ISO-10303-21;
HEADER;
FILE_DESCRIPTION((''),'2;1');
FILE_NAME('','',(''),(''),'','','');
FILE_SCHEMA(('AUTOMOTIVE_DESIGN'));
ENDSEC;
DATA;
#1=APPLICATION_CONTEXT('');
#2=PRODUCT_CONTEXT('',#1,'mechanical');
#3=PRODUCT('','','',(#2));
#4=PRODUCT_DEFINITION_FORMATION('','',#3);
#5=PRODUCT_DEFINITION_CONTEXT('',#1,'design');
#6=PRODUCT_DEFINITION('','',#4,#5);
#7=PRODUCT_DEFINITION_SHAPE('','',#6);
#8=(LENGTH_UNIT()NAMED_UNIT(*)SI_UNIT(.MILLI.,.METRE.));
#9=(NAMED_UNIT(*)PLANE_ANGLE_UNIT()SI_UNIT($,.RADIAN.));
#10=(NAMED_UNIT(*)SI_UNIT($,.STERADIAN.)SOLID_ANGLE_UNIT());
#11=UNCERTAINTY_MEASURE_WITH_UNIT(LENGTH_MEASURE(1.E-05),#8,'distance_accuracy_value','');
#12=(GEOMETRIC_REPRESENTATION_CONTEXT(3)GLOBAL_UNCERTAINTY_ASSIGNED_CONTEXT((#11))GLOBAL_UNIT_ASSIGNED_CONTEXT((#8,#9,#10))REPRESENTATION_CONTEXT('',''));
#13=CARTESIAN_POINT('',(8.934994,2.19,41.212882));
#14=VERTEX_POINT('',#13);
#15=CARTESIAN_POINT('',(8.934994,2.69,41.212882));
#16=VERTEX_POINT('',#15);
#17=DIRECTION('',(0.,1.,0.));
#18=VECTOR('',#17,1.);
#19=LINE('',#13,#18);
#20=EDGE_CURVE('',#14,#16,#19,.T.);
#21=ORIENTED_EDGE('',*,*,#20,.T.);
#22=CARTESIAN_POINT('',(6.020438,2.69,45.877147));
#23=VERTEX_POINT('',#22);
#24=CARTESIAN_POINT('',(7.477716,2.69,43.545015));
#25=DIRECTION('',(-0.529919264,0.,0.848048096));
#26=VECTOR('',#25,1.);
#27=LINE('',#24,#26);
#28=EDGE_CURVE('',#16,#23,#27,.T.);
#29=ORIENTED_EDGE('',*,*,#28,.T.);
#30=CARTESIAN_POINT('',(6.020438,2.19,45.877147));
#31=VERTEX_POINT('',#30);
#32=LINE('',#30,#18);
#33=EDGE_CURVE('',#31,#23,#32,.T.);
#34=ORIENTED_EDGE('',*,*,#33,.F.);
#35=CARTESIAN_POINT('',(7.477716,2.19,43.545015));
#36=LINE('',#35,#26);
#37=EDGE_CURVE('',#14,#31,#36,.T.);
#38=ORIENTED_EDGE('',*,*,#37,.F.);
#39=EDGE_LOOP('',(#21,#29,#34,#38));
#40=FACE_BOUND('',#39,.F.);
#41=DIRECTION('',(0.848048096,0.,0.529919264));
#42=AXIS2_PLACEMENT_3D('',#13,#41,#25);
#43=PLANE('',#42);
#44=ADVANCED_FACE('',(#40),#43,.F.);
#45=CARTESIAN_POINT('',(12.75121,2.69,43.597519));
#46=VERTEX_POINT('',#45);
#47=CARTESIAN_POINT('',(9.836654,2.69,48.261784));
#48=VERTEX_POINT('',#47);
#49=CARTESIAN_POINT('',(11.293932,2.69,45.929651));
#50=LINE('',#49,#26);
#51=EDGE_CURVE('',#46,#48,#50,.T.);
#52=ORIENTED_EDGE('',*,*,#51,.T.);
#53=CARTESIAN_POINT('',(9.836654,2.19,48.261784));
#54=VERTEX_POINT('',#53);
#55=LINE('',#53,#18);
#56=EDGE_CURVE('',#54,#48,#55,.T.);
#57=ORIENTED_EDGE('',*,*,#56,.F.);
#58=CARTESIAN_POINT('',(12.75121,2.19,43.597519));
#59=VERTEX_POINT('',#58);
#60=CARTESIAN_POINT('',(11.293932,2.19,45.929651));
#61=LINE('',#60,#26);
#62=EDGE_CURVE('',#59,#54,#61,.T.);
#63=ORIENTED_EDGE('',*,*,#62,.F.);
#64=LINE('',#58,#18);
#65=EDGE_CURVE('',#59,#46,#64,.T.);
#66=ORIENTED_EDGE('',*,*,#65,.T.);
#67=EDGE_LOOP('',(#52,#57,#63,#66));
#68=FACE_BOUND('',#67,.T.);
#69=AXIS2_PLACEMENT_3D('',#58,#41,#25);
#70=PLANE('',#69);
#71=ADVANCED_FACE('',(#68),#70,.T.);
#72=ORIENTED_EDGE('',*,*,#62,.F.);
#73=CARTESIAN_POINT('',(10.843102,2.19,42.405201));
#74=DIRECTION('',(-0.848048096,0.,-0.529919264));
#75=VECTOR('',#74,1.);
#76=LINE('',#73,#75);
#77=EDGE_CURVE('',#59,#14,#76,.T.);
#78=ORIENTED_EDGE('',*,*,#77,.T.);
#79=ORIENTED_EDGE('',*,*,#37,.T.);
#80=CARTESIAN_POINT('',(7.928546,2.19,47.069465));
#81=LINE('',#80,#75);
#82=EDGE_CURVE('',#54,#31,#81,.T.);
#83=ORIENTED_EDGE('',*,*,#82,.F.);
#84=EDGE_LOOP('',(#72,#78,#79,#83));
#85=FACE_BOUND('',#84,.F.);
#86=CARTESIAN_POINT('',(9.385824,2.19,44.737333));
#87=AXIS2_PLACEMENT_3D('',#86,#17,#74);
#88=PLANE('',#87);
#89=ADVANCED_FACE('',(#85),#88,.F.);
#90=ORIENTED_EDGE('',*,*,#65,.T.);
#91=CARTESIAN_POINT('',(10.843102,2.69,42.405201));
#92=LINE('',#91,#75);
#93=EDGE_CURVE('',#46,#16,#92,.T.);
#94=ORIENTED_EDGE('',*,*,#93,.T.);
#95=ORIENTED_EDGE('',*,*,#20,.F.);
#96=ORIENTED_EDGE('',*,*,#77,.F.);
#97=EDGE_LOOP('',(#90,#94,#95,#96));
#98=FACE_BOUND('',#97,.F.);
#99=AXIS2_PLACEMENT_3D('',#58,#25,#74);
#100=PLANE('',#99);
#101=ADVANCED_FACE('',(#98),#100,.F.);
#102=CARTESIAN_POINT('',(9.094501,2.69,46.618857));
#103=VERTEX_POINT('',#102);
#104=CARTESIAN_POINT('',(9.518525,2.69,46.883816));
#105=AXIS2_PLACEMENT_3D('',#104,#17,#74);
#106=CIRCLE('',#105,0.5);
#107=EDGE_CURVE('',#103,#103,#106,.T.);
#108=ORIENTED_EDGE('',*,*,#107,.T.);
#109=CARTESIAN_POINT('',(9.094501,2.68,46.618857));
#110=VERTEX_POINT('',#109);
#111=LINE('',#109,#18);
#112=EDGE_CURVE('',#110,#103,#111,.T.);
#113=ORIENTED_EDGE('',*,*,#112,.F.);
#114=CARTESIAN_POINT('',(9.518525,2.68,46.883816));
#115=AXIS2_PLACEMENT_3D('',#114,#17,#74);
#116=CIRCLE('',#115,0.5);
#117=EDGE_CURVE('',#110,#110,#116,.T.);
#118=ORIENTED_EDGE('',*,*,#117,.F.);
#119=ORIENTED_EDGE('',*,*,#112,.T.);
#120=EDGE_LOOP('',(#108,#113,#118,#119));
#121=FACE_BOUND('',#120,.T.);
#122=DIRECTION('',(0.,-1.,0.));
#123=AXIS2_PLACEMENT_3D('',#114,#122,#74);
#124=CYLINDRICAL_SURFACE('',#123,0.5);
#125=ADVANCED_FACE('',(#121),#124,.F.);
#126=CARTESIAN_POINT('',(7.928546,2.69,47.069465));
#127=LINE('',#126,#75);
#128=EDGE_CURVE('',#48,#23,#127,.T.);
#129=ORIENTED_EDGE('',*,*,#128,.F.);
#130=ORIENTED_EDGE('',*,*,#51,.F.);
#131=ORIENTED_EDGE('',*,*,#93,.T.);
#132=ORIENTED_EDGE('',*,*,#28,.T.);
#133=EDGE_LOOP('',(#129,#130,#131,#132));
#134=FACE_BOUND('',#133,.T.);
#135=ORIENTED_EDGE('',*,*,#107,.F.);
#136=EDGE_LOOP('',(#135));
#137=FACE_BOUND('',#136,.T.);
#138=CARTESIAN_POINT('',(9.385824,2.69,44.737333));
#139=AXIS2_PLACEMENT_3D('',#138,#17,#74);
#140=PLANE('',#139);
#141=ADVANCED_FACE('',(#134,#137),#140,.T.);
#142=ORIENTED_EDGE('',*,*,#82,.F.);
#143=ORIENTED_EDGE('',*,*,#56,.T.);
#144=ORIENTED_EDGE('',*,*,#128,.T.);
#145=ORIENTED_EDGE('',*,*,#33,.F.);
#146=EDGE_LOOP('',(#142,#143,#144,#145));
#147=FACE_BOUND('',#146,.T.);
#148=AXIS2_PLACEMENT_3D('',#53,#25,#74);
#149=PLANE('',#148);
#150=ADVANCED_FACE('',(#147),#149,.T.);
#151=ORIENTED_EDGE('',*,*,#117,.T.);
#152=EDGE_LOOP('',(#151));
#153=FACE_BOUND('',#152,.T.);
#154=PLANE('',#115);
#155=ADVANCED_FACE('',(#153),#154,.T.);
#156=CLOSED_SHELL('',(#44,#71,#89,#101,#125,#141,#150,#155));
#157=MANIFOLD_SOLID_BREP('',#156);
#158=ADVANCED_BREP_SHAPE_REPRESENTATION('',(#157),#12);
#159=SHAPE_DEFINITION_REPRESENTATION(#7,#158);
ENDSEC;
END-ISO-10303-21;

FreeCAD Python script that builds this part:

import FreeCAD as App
import Part
import Sketcher
from FreeCAD import Vector
Q = App.Units.Quantity

doc = App.newDocument("Part")
params = doc.addObject("Spreadsheet::Sheet", "Params")
for row, (alias, value) in enumerate([
    ("sketch1_diameter", "1 mm"),
    ("pad1_length", "0.01 mm"),
    ("sketch2_width", "4.5 mm"),
    ("sketch2_height", "5.5 mm"),
    ("pad2_length", "0.5 mm"),
], start=1):
    params.set(f"A{row}", alias)
    params.set(f"B{row}", "=" + value)
    params.setAlias(f"B{row}", alias)

body = doc.addObject("PartDesign::Body", "Body")

sketch1 = body.newObject("Sketcher::SketchObject", "Sketch")
sketch1.AttachmentSupport = (doc.getObject("XY_Plane"), [""])
sketch1.MapMode = "FlatFace"
sketch1.AttachmentOffset = App.Placement(Vector(0, 0, 0.49), App.Rotation())
sketch1.addGeometry(Part.Circle(Vector(1, 4.5, 0), Vector(0, 0, 1), 0.5), False)
sketch1.addConstraint([
    Sketcher.Constraint("Diameter", 0, Q("1 mm")),
    Sketcher.Constraint("DistanceX", -1, 1, 0, 3, Q("1 mm")),
    Sketcher.Constraint("DistanceY", -1, 1, 0, 3, Q("4.5 mm")),
])
sketch1.setExpression("Constraints[0]", "Params.sketch1_diameter")
pad1 = body.newObject("PartDesign::Pad", "Pad")
pad1.Profile = sketch1
pad1.setExpression("Length", "Params.pad1_length")
body2 = doc.addObject("PartDesign::Body", "Body001")

sketch2 = body2.newObject("Sketcher::SketchObject", "Sketch001")
sketch2.AttachmentSupport = (doc.getObject("XY_Plane001"), [""])
sketch2.MapMode = "FlatFace"
sketch2.addGeometry([
    Part.LineSegment(Vector(0, 5.5, 0), Vector(0, 0, 0)),
    Part.LineSegment(Vector(0, 0, 0), Vector(4.5, 0, 0)),
    Part.LineSegment(Vector(4.5, 0, 0), Vector(4.5, 5.5, 0)),
    Part.LineSegment(Vector(4.5, 5.5, 0), Vector(0, 5.5, 0)),
], False)
sketch2.addConstraint([
    Sketcher.Constraint("Coincident", 0, 2, 1, 1),
    Sketcher.Constraint("Coincident", 1, 2, 2, 1),
    Sketcher.Constraint("Coincident", 2, 2, 3, 1),
    Sketcher.Constraint("Coincident", 3, 2, 0, 1),
    Sketcher.Constraint("Vertical", 0),
    Sketcher.Constraint("Horizontal", 1),
    Sketcher.Constraint("Vertical", 2),
    Sketcher.Constraint("Horizontal", 3),
    Sketcher.Constraint("Coincident", 0, 2, -1, 1),
    Sketcher.Constraint("DistanceX", 1, 1, 1, 2, Q("4.5 mm")),
    Sketcher.Constraint("DistanceY", 0, 2, 0, 1, Q("5.5 mm")),
])
sketch2.setExpression("Constraints[9]", "Params.sketch2_width")
sketch2.setExpression("Constraints[10]", "Params.sketch2_height")
pad2 = body2.newObject("PartDesign::Pad", "Pad001")
pad2.Profile = sketch2
pad2.setExpression("Length", "Params.pad2_length")
doc.recompute()

boolean = body2.newObject("PartDesign::Boolean", "Boolean")
boolean.Type = "Cut"
boolean.addObjects([body])
body3 = doc.addObject("PartDesign::Body", "Body002")
doc.recompute()

body2.Placement = App.Placement(Vector(0, 0, 0), App.Rotation(Vector(1, 0, 0), 90))
boolean2 = body3.newObject("PartDesign::Boolean", "Boolean001")
boolean2.Type = "Fuse"
boolean2.addObjects([body2])
body4 = doc.addObject("PartDesign::Body", "Body003")
doc.recompute()

body3.Placement = App.Placement(Vector(0, 0, 0), App.Rotation(Vector(0, 1, 0), 32))
boolean3 = body4.newObject("PartDesign::Boolean", "Boolean002")
boolean3.Type = "Fuse"
boolean3.addObjects([body3])
body5 = doc.addObject("PartDesign::Body", "Body004")
doc.recompute()

body4.Placement = App.Placement(Vector(12.75121, 2.19, 43.597519), App.Rotation(Vector(0, 0, 1), 180))
boolean4 = body5.newObject("PartDesign::Boolean", "Boolean003")
boolean4.Type = "Fuse"
boolean4.addObjects([body4])

doc.recompute()
